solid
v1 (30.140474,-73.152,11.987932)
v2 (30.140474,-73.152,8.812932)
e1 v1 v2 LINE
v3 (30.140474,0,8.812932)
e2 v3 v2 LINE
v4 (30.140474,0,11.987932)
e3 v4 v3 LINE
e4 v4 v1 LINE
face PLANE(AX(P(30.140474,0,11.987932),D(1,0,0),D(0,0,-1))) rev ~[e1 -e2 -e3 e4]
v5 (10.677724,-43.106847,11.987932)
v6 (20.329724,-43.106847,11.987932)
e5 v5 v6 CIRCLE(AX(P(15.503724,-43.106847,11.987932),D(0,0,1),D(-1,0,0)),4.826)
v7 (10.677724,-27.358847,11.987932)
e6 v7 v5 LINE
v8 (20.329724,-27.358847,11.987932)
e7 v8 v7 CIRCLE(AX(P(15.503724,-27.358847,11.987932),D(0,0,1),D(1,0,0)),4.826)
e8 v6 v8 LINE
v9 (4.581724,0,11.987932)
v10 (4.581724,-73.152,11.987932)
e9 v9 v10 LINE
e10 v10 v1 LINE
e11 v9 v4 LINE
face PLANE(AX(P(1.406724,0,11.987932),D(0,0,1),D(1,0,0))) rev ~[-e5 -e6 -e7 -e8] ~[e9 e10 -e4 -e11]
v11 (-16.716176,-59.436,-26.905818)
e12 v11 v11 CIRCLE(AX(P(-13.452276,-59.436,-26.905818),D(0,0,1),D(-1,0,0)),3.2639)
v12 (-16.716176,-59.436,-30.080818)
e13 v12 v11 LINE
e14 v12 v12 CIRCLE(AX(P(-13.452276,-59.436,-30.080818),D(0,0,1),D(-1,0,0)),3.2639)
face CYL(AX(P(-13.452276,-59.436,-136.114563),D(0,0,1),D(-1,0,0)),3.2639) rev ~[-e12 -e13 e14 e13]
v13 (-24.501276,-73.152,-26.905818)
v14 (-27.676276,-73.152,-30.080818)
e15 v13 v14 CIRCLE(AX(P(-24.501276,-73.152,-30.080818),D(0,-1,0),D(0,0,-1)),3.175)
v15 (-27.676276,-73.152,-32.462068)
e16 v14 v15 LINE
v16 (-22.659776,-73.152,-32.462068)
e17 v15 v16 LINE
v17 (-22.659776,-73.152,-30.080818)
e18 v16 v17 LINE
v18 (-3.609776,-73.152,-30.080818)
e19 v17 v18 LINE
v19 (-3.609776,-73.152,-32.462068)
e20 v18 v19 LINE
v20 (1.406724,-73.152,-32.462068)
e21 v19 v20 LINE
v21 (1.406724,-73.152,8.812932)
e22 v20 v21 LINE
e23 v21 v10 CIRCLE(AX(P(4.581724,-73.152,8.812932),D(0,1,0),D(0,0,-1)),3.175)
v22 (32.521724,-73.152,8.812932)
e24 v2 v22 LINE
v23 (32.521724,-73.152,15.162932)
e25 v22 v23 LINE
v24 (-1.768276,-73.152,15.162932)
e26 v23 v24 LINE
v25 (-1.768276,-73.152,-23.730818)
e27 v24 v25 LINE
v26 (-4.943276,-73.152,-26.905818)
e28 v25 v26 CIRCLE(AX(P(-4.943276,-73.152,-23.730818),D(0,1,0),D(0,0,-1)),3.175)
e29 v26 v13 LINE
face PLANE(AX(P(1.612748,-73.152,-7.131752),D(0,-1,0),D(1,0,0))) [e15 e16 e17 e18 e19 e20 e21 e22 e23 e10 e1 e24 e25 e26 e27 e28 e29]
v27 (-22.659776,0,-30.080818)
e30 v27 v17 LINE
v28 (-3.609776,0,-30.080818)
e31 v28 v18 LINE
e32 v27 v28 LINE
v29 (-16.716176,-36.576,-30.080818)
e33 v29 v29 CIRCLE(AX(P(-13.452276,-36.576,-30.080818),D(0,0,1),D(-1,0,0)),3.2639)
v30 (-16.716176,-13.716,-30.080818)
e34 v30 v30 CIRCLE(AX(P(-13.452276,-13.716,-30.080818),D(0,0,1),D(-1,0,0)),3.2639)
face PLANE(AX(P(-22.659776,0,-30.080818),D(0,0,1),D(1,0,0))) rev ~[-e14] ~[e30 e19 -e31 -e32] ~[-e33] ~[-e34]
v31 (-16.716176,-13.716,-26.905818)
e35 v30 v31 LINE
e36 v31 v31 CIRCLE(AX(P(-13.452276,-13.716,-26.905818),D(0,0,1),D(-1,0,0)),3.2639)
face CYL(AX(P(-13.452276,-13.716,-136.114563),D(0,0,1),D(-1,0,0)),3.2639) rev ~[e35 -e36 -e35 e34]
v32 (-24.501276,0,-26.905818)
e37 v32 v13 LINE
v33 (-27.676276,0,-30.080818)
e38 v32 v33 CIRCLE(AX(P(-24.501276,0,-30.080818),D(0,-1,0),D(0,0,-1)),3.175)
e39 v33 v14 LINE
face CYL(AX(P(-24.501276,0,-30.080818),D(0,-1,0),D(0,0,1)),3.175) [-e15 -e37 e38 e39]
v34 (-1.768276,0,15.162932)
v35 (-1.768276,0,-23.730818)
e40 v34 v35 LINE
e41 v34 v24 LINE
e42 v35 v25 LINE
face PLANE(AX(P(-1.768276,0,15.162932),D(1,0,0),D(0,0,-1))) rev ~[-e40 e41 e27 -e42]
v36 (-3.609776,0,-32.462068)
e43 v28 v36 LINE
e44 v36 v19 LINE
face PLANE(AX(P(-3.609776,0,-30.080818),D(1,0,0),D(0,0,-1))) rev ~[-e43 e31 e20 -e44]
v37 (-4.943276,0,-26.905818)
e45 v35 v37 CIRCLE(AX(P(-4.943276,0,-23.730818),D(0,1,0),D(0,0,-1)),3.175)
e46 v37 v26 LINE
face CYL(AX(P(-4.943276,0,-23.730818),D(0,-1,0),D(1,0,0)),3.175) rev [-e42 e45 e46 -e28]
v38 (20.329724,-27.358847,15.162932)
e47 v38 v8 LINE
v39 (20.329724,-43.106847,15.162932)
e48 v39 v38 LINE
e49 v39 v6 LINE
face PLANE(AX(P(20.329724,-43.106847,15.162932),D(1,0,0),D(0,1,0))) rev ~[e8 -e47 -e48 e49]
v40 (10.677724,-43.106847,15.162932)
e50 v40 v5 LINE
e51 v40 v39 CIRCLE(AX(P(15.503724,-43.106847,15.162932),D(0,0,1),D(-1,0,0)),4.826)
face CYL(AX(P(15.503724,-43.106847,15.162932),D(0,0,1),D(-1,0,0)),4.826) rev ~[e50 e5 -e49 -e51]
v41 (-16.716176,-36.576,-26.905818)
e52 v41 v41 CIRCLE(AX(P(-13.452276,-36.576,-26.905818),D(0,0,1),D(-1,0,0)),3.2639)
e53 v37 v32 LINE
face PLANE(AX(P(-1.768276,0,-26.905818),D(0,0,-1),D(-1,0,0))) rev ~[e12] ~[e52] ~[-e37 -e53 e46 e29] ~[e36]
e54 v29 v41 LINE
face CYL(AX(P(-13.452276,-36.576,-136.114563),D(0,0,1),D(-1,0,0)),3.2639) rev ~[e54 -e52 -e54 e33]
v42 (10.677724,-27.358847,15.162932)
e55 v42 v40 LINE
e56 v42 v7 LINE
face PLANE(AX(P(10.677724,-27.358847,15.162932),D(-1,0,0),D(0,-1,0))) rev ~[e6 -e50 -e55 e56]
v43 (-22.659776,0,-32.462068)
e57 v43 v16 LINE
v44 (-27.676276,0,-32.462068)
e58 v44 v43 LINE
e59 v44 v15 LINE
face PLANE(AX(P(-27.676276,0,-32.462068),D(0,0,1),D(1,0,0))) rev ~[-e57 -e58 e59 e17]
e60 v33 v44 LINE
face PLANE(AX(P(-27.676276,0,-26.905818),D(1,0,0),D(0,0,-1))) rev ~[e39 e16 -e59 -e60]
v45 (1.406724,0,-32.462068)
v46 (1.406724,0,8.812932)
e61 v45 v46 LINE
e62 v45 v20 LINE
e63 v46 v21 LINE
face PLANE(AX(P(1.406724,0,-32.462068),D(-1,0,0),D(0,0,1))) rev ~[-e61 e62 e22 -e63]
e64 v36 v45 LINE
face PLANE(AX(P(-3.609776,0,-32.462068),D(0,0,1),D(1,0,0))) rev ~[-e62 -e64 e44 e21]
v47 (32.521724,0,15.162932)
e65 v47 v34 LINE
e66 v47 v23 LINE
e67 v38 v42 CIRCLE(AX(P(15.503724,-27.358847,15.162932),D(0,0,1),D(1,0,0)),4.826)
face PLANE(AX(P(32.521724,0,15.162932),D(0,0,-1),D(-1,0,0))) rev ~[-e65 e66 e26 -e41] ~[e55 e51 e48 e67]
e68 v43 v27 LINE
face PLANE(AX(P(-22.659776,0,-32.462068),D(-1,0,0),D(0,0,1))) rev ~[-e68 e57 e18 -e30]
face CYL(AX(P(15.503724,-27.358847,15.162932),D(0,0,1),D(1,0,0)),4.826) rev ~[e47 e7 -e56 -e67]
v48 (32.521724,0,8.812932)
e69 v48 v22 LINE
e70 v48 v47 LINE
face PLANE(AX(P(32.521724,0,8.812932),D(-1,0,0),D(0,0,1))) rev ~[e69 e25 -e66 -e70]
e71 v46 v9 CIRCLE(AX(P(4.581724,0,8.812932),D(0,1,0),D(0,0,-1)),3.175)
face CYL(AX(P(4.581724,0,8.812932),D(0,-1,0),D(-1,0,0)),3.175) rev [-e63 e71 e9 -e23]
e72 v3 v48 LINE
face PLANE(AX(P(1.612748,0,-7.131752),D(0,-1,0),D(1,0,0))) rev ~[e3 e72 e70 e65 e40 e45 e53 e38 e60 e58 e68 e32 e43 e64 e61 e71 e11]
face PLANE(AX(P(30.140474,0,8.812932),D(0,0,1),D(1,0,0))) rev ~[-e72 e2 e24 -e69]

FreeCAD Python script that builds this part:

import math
import FreeCAD as App
import Part
import Sketcher

V = App.Vector
Q = App.Units.Quantity


def edges_at(feature, points):
    """Names of the edges that pass closest to the given points."""
    edges = feature.Shape.Edges
    near = lambda p: min(range(len(edges)), key=lambda i: edges[i].distToShape(Part.Vertex(*p))[0])
    return sorted({f"Edge{near(p) + 1}" for p in points})


def add_polygon(sketch, points):
    """Adds a closed chain of lines whose ends are joined by coincident constraints."""
    first, n = sketch.GeometryCount, len(points)
    for a, b in zip(points, points[1:] + points[:1]):
        sketch.addGeometry(Part.LineSegment(App.Vector(*a, 0), App.Vector(*b, 0)), False)
    for i in range(n):
        sketch.addConstraint(Sketcher.Constraint("Coincident", first + i, 2, first + (i + 1) % n, 1))

doc = App.newDocument("Part")
params = doc.addObject("Spreadsheet::Sheet", "Params")
for row, (alias, value) in enumerate([
    ("sketch1_width", "1.35 in"),
    ("sketch1_width2", "1.02 in"),
    ("sketch1_width3", "0.75 in"),
    ("sketch1_height", "1.75 in"),
    ("sketch1_height2", "0.25 in"),
    ("pad1_length", "2.88 in"),
    ("sketch2_diameter", "0.257 in"),
    ("hole_diameter", "0.257 in"),
    ("sketch3_radius", "0.19 in"),
    ("sketch3_height", "0.62 in"),
    ("fillet_radius", "0.125 in"),
], start=1):
    params.set(f"A{row}", alias)
    params.set(f"B{row}", "=" + value)
    params.setAlias(f"B{row}", alias)

body = doc.addObject("PartDesign::Body", "Body")

# Sketch on XZ plane
sketch1 = doc.addObject("Sketcher::SketchObject", "Sketch")
body.addObject(sketch1)
sketch1.AttachmentSupport = (doc.XZ_Plane, [""])
sketch1.MapMode = "FlatFace"
add_polygon(sketch1, [(32.521724, 15.162932), (-1.768276, 15.162932), (-1.768276, -26.905818), (-27.676276, -26.905818), (-27.676276, -32.462068), (-22.659776, -32.462068), (-22.659776, -30.080818), (-3.609776, -30.080818), (-3.609776, -32.462068), (1.406724, -32.462068), (1.406724, 11.987932), (30.140474, 11.987932), (30.140474, 8.812932), (32.521724, 8.812932)])  # lines 0-13
sketch1.addConstraint([
    Sketcher.Constraint("Horizontal", 0),
    Sketcher.Constraint("Vertical", 1),
    Sketcher.Constraint("Horizontal", 2),
    Sketcher.Constraint("Vertical", 3),
    Sketcher.Constraint("Horizontal", 4),
    Sketcher.Constraint("Vertical", 5),
    Sketcher.Constraint("Horizontal", 6),
    Sketcher.Constraint("Vertical", 7),
    Sketcher.Constraint("Horizontal", 8),
    Sketcher.Constraint("Vertical", 9),
    Sketcher.Constraint("Horizontal", 10),
    Sketcher.Constraint("Vertical", 11),
    Sketcher.Constraint("Horizontal", 12),
    Sketcher.Constraint("Vertical", 13),
    Sketcher.Constraint("Horizontal", 4, 2, 7, 2),
    Sketcher.Constraint("Equal", 4, 8),
    Sketcher.Constraint("Equal", 12, 5),
    Sketcher.Constraint("DistanceX", 0, 2, 0, 1, Q("1.35 in")),
    Sketcher.Constraint("DistanceX", 2, 2, 2, 1, Q("1.02 in")),
    Sketcher.Constraint("DistanceX", 6, 1, 6, 2, Q("0.75 in")),
    Sketcher.Constraint("DistanceY", 9, 1, 9, 2, Q("1.75 in")),
    Sketcher.Constraint("DistanceY", 13, 1, 13, 2, Q("0.25 in")),
    Sketcher.Constraint("DistanceX", 12, 1, 12, 2, Q("0.09375 in")),
    Sketcher.Constraint("DistanceY", 1, 2, 1, 1, Q("1.65625 in")),
    Sketcher.Constraint("DistanceY", 3, 2, 3, 1, Q("0.21875 in")),
    Sketcher.Constraint("DistanceX", 4, 1, 4, 2, Q("0.1975 in")),
    Sketcher.Constraint("DistanceY", -1, 1, 0, 2, Q("15.162932 mm")),
    Sketcher.Constraint("DistanceX", 0, 2, -1, 1, Q("1.768276 mm")),
])
sketch1.setExpression("Constraints[31]", "Params.sketch1_width")
sketch1.setExpression("Constraints[32]", "Params.sketch1_width2")
sketch1.setExpression("Constraints[33]", "Params.sketch1_width3")
sketch1.setExpression("Constraints[34]", "Params.sketch1_height")
sketch1.setExpression("Constraints[35]", "Params.sketch1_height2")
pad1 = doc.addObject("PartDesign::Pad", "Pad")
body.addObject(pad1)
pad1.Profile = sketch1
pad1.setExpression("Length", "Params.pad1_length")

# Sketch on XY plane
sketch2 = doc.addObject("Sketcher::SketchObject", "Sketch001")
body.addObject(sketch2)
sketch2.AttachmentSupport = (doc.XY_Plane, [""])
sketch2.MapMode = "FlatFace"
sketch2.AttachmentOffset = App.Placement(V(0, 0, -30.080818), App.Rotation())
sketch2.addGeometry([
    Part.Circle(V(-13.452276, -13.716, 0), V(0, 0, 1), 3.2639),
    Part.Circle(V(-13.452276, -36.576, 0), V(0, 0, 1), 3.2639),
    Part.Circle(V(-13.452276, -59.436, 0), V(0, 0, 1), 3.2639),
], False)
sketch2.addConstraint([
    Sketcher.Constraint("Equal", 0, 1),
    Sketcher.Constraint("Equal", 1, 2),
    Sketcher.Constraint("Vertical", 0, 3, 1, 3),
    Sketcher.Constraint("Vertical", 1, 3, 2, 3),
    Sketcher.Constraint("Diameter", 0, Q("0.257 in")),
    Sketcher.Constraint("DistanceY", 1, 3, 0, 3, Q("0.9 in")),
    Sketcher.Constraint("DistanceY", 2, 3, 1, 3, Q("0.9 in")),
    Sketcher.Constraint("DistanceY", 0, 3, -1, 1, Q("0.54 in")),
    Sketcher.Constraint("DistanceX", 0, 3, -1, 1, Q("13.452276 mm")),
])
sketch2.setExpression("Constraints[4]", "Params.sketch2_diameter")
doc.recompute()
hole = doc.addObject("PartDesign::Hole", "Hole")
body.addObject(hole)
hole.Profile = sketch2
hole.ThreadType = "None"
hole.setExpression("Diameter", "Params.hole_diameter")
hole.DepthType = "ThroughAll"
hole.Reversed = True

# Sketch on XY plane
sketch3 = doc.addObject("Sketcher::SketchObject", "Sketch002")
body.addObject(sketch3)
sketch3.AttachmentSupport = (doc.XY_Plane, [""])
sketch3.MapMode = "FlatFace"
sketch3.AttachmentOffset = App.Placement(V(0, 0, 15.162932), App.Rotation())
sketch3.addGeometry([
    Part.ArcOfCircle(Part.Circle(V(15.503724, -27.358847, 0), V(0, 0, 1), 4.826), math.radians(0), math.radians(180)),
    Part.LineSegment(V(10.677724, -27.358847, 0), V(10.677724, -43.106847, 0)),
    Part.ArcOfCircle(Part.Circle(V(15.503724, -43.106847, 0), V(0, 0, 1), 4.826), math.radians(180), math.radians(360)),
    Part.LineSegment(V(20.329724, -43.106847, 0), V(20.329724, -27.358847, 0)),
], False)
sketch3.addConstraint([
    Sketcher.Constraint("Tangent", 0, 2, 1, 1),
    Sketcher.Constraint("Tangent", 1, 2, 2, 1),
    Sketcher.Constraint("Tangent", 2, 2, 3, 1),
    Sketcher.Constraint("Tangent", 3, 2, 0, 1),
    Sketcher.Constraint("Vertical", 1),
    Sketcher.Constraint("Vertical", 3),
    Sketcher.Constraint("Radius", 0, Q("0.19 in")),
    Sketcher.Constraint("DistanceY", 1, 2, 1, 1, Q("0.62 in")),
    Sketcher.Constraint("DistanceX", -1, 1, 0, 3, Q("15.503724 mm")),
    Sketcher.Constraint("DistanceY", 0, 3, -1, 1, Q("27.358847 mm")),
])
sketch3.setExpression("Constraints[6]", "Params.sketch3_radius")
sketch3.setExpression("Constraints[7]", "Params.sketch3_height")
pocket1 = doc.addObject("PartDesign::Pocket", "Pocket")
body.addObject(pocket1)
pocket1.Profile = sketch3
pocket1.Type = "ThroughAll"
doc.recompute()

fillet = doc.addObject("PartDesign::Fillet", "Fillet")
body.addObject(fillet)
fillet.Base = (pocket1, edges_at(pocket1, [(-1.768, -36.576, -26.906), (1.407, -36.576, 11.988), (-27.676, -36.576, -26.906)]))
fillet.setExpression("Radius", "Params.fillet_radius")

doc.recompute()
